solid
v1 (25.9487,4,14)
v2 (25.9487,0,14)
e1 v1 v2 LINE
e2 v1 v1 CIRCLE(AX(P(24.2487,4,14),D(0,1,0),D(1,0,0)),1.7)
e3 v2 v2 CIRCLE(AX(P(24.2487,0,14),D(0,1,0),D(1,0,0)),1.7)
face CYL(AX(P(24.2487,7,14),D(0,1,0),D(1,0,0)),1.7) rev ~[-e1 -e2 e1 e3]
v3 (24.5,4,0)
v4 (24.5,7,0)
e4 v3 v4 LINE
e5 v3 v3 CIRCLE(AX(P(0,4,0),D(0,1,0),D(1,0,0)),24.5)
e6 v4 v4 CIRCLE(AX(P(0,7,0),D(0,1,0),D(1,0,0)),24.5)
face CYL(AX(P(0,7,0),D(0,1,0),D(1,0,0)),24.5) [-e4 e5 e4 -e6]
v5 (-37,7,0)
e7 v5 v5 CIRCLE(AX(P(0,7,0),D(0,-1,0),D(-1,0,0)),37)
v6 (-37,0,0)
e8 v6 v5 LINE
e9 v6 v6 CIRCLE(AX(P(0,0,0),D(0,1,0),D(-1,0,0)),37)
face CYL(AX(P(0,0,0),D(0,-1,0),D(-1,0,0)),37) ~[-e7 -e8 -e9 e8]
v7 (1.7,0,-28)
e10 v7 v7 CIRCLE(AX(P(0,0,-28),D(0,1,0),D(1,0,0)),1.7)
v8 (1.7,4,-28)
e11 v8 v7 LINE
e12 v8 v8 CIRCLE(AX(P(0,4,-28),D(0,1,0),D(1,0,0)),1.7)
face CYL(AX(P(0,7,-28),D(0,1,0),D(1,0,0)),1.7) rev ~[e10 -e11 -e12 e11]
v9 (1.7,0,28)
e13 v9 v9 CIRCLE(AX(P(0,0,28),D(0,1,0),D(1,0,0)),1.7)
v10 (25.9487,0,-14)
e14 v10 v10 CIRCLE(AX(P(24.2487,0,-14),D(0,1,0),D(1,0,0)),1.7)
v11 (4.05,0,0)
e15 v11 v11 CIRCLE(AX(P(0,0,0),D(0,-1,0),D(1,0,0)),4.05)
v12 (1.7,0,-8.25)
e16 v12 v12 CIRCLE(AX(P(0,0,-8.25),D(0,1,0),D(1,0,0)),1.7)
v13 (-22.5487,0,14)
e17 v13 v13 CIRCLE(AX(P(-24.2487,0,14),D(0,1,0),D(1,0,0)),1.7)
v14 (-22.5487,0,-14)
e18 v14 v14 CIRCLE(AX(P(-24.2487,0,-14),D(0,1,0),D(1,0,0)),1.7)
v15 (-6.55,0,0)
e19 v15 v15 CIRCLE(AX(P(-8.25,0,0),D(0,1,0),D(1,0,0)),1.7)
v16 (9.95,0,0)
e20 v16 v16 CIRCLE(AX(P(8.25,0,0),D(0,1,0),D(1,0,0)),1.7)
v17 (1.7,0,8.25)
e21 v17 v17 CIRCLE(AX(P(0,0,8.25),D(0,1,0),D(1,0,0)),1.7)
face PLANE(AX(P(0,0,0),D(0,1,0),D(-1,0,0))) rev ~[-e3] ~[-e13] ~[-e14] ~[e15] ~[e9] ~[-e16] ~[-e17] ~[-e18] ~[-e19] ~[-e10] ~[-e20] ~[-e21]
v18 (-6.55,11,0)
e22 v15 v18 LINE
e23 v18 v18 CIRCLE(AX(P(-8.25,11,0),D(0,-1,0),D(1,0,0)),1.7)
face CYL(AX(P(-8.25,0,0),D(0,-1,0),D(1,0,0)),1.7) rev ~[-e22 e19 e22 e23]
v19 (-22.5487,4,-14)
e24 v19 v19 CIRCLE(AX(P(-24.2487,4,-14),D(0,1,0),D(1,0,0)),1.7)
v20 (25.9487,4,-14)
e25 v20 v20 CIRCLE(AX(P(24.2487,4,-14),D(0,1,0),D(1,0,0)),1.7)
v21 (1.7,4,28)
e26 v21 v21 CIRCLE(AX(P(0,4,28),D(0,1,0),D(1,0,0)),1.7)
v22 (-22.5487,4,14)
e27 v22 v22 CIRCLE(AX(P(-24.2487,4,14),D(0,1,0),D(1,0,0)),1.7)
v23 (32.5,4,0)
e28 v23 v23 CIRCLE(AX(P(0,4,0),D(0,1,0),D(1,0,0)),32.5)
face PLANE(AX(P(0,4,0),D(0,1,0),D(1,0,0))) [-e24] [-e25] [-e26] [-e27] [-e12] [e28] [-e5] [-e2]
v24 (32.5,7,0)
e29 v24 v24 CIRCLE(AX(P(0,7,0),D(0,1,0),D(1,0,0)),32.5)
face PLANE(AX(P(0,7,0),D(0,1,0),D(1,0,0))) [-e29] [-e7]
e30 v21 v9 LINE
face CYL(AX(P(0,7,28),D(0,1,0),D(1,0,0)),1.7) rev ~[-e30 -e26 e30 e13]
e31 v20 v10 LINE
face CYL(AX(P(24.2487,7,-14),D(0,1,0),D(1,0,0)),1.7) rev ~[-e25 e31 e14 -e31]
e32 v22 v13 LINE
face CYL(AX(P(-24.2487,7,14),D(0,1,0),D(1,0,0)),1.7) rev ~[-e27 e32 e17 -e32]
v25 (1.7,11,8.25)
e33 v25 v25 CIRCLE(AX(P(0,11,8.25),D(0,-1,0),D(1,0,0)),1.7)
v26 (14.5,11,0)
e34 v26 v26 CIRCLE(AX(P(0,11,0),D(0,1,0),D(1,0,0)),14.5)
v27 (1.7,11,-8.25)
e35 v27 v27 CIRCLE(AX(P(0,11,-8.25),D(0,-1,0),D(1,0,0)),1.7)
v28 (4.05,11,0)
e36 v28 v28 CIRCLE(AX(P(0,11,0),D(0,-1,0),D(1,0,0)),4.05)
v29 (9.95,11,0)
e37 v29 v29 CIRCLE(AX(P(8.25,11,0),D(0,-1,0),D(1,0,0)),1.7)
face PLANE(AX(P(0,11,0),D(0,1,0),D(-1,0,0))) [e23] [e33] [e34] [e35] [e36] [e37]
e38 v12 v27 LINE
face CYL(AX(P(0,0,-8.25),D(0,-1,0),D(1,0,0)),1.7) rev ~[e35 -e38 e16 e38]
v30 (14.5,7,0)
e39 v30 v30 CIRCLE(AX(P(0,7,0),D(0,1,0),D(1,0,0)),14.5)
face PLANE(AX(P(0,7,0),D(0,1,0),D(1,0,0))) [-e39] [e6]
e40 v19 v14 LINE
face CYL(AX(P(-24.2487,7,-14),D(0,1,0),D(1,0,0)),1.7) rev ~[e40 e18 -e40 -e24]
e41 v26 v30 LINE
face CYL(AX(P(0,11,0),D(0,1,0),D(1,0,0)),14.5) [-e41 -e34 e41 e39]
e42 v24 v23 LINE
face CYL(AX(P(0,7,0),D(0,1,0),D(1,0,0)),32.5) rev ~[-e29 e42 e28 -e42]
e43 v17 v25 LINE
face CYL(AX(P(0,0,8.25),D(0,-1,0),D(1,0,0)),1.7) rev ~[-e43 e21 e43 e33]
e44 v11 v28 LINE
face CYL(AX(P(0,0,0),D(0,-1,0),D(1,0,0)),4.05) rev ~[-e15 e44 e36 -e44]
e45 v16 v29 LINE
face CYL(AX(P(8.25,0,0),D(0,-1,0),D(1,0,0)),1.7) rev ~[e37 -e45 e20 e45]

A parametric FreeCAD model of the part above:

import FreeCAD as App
import Part
import Sketcher
Q = App.Units.Quantity

doc = App.newDocument("Part")
body = doc.addObject("PartDesign::Body", "Body")

sketch1 = body.newObject("Sketcher::SketchObject", "Sketch")
sketch1.AttachmentSupport = (doc.getObject("XZ_Plane"), [""])
sketch1.MapMode = "FlatFace"
sketch1.addGeometry(Part.Circle(App.Vector(0, 0, 0), App.Vector(0, 0, 1), 37), False)
sketch1.addConstraint([
    Sketcher.Constraint("Coincident", 0, 3, -1, 1),
    Sketcher.Constraint("Diameter", 0, Q("74 mm")),
])
pad1 = body.newObject("PartDesign::Pad", "Pad")
pad1.Profile = sketch1
pad1.Length = 11
pad1.Reversed = True

sketch2 = body.newObject("Sketcher::SketchObject", "Sketch001")
sketch2.AttachmentSupport = (doc.getObject("XZ_Plane"), [""])
sketch2.MapMode = "FlatFace"
sketch2.addGeometry([
    Part.Circle(App.Vector(8.2, 0, 0), App.Vector(0, 0, 1), 1.7),
    Part.Circle(App.Vector(0, 8.2, 0), App.Vector(0, 0, 1), 1.7),
    Part.Circle(App.Vector(0, -8.2, 0), App.Vector(0, 0, 1), 1.7),
    Part.Circle(App.Vector(-8.2, 0, 0), App.Vector(0, 0, 1), 1.7),
], False)
sketch2.addConstraint([
    Sketcher.Constraint("Equal", 0, 1),
    Sketcher.Constraint("Equal", 1, 2),
    Sketcher.Constraint("Equal", 2, 3),
    Sketcher.Constraint("Symmetric", 1, 3, 2, 3, -1, 1),
    Sketcher.Constraint("Symmetric", 0, 3, 3, 3, -1, 1),
    Sketcher.Constraint("PointOnObject", 0, 3, -1),
    Sketcher.Constraint("PointOnObject", 1, 3, -2),
    Sketcher.Constraint("Diameter", 0, Q("3.4 mm")),
    Sketcher.Constraint("DistanceY", 2, 3, 1, 3, Q("16.5 mm")),
    Sketcher.Constraint("DistanceX", 3, 3, 0, 3, Q("16.5 mm")),
])
pocket1 = body.newObject("PartDesign::Pocket", "Pocket")
pocket1.Profile = sketch2
pocket1.Type = "ThroughAll"

sketch3 = body.newObject("Sketcher::SketchObject", "Sketch002")
sketch3.AttachmentSupport = (doc.getObject("XZ_Plane"), [""])
sketch3.MapMode = "FlatFace"
sketch3.addGeometry(Part.Circle(App.Vector(0, 0, 0), App.Vector(0, 0, 1), 4), False)
sketch3.addConstraint([
    Sketcher.Constraint("Coincident", 0, 3, -1, 1),
    Sketcher.Constraint("Diameter", 0, Q("8.1 mm")),
])
pocket2 = body.newObject("PartDesign::Pocket", "Pocket001")
pocket2.Profile = sketch3
pocket2.Type = "ThroughAll"

sketch4 = body.newObject("Sketcher::SketchObject", "Sketch003")
sketch4.AttachmentSupport = (doc.getObject("XZ_Plane"), [""])
sketch4.MapMode = "FlatFace"
sketch4.AttachmentOffset = App.Placement(App.Vector(0, 0, -11), App.Rotation())
sketch4.addGeometry([
    Part.Circle(App.Vector(0, 0, 0), App.Vector(0, 0, 1), 37),
    Part.Circle(App.Vector(0, 0, 0), App.Vector(0, 0, 1), 24),
], False)
sketch4.addConstraint([
    Sketcher.Constraint("Coincident", 0, 3, -1, 1),
    Sketcher.Constraint("Coincident", 1, 3, -1, 1),
    Sketcher.Constraint("Diameter", 0, Q("74 mm")),
    Sketcher.Constraint("Diameter", 1, Q("49 mm")),
])
pocket3 = body.newObject("PartDesign::Pocket", "Pocket002")
pocket3.Profile = sketch4
pocket3.Length = 4
pocket3.Reversed = True

sketch5 = body.newObject("Sketcher::SketchObject", "Sketch004")
sketch5.AttachmentSupport = (doc.getObject("XZ_Plane"), [""])
sketch5.MapMode = "FlatFace"
sketch5.AttachmentOffset = App.Placement(App.Vector(0, 0, -7), App.Rotation())
sketch5.addGeometry([
    Part.Circle(App.Vector(24.2, -14, 0), App.Vector(0, 0, 1), 1.7),
    Part.Circle(App.Vector(24.2, 14, 0), App.Vector(0, 0, 1), 1.7),
    Part.Circle(App.Vector(0, -28, 0), App.Vector(0, 0, 1), 1.7),
    Part.Circle(App.Vector(0, 28, 0), App.Vector(0, 0, 1), 1.7),
    Part.Circle(App.Vector(-24.2, -14, 0), App.Vector(0, 0, 1), 1.7),
    Part.Circle(App.Vector(-24.2, 14, 0), App.Vector(0, 0, 1), 1.7),
], False)
sketch5.addConstraint([
    Sketcher.Constraint("Equal", 0, 1),
    Sketcher.Constraint("Equal", 1, 2),
    Sketcher.Constraint("Equal", 2, 3),
    Sketcher.Constraint("Equal", 3, 4),
    Sketcher.Constraint("Equal", 4, 5),
    Sketcher.Constraint("Symmetric", 2, 3, 3, 3, -1, 1),
    Sketcher.Constraint("Symmetric", 1, 3, 4, 3, -1, 1),
    Sketcher.Constraint("Symmetric", 0, 3, 5, 3, -1, 1),
    Sketcher.Constraint("Symmetric", 0, 3, 4, 3, -2),
    Sketcher.Constraint("PointOnObject", 2, 3, -2),
    Sketcher.Constraint("Diameter", 0, Q("3.4 mm")),
    Sketcher.Constraint("DistanceY", 2, 3, 3, 3, Q("56 mm")),
    Sketcher.Constraint("DistanceY", 0, 3, -1, 1, Q("14 mm")),
    Sketcher.Constraint("DistanceX", -1, 1, 0, 3, Q("24.2487 mm")),
])
pocket4 = body.newObject("PartDesign::Pocket", "Pocket003")
pocket4.Profile = sketch5
pocket4.Type = "ThroughAll"
pocket4.Reversed = True

sketch6 = body.newObject("Sketcher::SketchObject", "Sketch005")
sketch6.AttachmentSupport = (doc.getObject("XZ_Plane"), [""])
sketch6.MapMode = "FlatFace"
sketch6.AttachmentOffset = App.Placement(App.Vector(0, 0, -7), App.Rotation())
sketch6.addGeometry([
    Part.Circle(App.Vector(0, 0, 0), App.Vector(0, 0, 1), 32),
    Part.Circle(App.Vector(0, 0, 0), App.Vector(0, 0, 1), 24),
], False)
sketch6.addConstraint([
    Sketcher.Constraint("Coincident", 0, 3, -1, 1),
    Sketcher.Constraint("Coincident", 1, 3, -1, 1),
    Sketcher.Constraint("Diameter", 0, Q("65 mm")),
    Sketcher.Constraint("Diameter", 1, Q("49 mm")),
])
pocket5 = body.newObject("PartDesign::Pocket", "Pocket004")
pocket5.Profile = sketch6
pocket5.Length = 3
pocket5.Reversed = True

sketch7 = body.newObject("Sketcher::SketchObject", "Sketch006")
sketch7.AttachmentSupport = (doc.getObject("XZ_Plane"), [""])
sketch7.MapMode = "FlatFace"
sketch7.AttachmentOffset = App.Placement(App.Vector(0, 0, -11), App.Rotation())
sketch7.addGeometry([
    Part.Circle(App.Vector(0, 0, 0), App.Vector(0, 0, 1), 37),
    Part.Circle(App.Vector(0, 0, 0), App.Vector(0, 0, 1), 14),
], False)
sketch7.addConstraint([
    Sketcher.Constraint("Coincident", 0, 3, -1, 1),
    Sketcher.Constraint("Coincident", 1, 3, -1, 1),
    Sketcher.Constraint("Diameter", 1, Q("29 mm")),
    Sketcher.Constraint("Diameter", 0, Q("74 mm")),
])
pocket6 = body.newObject("PartDesign::Pocket", "Pocket005")
pocket6.Profile = sketch7
pocket6.Length = 4
pocket6.Reversed = True

doc.recompute()
